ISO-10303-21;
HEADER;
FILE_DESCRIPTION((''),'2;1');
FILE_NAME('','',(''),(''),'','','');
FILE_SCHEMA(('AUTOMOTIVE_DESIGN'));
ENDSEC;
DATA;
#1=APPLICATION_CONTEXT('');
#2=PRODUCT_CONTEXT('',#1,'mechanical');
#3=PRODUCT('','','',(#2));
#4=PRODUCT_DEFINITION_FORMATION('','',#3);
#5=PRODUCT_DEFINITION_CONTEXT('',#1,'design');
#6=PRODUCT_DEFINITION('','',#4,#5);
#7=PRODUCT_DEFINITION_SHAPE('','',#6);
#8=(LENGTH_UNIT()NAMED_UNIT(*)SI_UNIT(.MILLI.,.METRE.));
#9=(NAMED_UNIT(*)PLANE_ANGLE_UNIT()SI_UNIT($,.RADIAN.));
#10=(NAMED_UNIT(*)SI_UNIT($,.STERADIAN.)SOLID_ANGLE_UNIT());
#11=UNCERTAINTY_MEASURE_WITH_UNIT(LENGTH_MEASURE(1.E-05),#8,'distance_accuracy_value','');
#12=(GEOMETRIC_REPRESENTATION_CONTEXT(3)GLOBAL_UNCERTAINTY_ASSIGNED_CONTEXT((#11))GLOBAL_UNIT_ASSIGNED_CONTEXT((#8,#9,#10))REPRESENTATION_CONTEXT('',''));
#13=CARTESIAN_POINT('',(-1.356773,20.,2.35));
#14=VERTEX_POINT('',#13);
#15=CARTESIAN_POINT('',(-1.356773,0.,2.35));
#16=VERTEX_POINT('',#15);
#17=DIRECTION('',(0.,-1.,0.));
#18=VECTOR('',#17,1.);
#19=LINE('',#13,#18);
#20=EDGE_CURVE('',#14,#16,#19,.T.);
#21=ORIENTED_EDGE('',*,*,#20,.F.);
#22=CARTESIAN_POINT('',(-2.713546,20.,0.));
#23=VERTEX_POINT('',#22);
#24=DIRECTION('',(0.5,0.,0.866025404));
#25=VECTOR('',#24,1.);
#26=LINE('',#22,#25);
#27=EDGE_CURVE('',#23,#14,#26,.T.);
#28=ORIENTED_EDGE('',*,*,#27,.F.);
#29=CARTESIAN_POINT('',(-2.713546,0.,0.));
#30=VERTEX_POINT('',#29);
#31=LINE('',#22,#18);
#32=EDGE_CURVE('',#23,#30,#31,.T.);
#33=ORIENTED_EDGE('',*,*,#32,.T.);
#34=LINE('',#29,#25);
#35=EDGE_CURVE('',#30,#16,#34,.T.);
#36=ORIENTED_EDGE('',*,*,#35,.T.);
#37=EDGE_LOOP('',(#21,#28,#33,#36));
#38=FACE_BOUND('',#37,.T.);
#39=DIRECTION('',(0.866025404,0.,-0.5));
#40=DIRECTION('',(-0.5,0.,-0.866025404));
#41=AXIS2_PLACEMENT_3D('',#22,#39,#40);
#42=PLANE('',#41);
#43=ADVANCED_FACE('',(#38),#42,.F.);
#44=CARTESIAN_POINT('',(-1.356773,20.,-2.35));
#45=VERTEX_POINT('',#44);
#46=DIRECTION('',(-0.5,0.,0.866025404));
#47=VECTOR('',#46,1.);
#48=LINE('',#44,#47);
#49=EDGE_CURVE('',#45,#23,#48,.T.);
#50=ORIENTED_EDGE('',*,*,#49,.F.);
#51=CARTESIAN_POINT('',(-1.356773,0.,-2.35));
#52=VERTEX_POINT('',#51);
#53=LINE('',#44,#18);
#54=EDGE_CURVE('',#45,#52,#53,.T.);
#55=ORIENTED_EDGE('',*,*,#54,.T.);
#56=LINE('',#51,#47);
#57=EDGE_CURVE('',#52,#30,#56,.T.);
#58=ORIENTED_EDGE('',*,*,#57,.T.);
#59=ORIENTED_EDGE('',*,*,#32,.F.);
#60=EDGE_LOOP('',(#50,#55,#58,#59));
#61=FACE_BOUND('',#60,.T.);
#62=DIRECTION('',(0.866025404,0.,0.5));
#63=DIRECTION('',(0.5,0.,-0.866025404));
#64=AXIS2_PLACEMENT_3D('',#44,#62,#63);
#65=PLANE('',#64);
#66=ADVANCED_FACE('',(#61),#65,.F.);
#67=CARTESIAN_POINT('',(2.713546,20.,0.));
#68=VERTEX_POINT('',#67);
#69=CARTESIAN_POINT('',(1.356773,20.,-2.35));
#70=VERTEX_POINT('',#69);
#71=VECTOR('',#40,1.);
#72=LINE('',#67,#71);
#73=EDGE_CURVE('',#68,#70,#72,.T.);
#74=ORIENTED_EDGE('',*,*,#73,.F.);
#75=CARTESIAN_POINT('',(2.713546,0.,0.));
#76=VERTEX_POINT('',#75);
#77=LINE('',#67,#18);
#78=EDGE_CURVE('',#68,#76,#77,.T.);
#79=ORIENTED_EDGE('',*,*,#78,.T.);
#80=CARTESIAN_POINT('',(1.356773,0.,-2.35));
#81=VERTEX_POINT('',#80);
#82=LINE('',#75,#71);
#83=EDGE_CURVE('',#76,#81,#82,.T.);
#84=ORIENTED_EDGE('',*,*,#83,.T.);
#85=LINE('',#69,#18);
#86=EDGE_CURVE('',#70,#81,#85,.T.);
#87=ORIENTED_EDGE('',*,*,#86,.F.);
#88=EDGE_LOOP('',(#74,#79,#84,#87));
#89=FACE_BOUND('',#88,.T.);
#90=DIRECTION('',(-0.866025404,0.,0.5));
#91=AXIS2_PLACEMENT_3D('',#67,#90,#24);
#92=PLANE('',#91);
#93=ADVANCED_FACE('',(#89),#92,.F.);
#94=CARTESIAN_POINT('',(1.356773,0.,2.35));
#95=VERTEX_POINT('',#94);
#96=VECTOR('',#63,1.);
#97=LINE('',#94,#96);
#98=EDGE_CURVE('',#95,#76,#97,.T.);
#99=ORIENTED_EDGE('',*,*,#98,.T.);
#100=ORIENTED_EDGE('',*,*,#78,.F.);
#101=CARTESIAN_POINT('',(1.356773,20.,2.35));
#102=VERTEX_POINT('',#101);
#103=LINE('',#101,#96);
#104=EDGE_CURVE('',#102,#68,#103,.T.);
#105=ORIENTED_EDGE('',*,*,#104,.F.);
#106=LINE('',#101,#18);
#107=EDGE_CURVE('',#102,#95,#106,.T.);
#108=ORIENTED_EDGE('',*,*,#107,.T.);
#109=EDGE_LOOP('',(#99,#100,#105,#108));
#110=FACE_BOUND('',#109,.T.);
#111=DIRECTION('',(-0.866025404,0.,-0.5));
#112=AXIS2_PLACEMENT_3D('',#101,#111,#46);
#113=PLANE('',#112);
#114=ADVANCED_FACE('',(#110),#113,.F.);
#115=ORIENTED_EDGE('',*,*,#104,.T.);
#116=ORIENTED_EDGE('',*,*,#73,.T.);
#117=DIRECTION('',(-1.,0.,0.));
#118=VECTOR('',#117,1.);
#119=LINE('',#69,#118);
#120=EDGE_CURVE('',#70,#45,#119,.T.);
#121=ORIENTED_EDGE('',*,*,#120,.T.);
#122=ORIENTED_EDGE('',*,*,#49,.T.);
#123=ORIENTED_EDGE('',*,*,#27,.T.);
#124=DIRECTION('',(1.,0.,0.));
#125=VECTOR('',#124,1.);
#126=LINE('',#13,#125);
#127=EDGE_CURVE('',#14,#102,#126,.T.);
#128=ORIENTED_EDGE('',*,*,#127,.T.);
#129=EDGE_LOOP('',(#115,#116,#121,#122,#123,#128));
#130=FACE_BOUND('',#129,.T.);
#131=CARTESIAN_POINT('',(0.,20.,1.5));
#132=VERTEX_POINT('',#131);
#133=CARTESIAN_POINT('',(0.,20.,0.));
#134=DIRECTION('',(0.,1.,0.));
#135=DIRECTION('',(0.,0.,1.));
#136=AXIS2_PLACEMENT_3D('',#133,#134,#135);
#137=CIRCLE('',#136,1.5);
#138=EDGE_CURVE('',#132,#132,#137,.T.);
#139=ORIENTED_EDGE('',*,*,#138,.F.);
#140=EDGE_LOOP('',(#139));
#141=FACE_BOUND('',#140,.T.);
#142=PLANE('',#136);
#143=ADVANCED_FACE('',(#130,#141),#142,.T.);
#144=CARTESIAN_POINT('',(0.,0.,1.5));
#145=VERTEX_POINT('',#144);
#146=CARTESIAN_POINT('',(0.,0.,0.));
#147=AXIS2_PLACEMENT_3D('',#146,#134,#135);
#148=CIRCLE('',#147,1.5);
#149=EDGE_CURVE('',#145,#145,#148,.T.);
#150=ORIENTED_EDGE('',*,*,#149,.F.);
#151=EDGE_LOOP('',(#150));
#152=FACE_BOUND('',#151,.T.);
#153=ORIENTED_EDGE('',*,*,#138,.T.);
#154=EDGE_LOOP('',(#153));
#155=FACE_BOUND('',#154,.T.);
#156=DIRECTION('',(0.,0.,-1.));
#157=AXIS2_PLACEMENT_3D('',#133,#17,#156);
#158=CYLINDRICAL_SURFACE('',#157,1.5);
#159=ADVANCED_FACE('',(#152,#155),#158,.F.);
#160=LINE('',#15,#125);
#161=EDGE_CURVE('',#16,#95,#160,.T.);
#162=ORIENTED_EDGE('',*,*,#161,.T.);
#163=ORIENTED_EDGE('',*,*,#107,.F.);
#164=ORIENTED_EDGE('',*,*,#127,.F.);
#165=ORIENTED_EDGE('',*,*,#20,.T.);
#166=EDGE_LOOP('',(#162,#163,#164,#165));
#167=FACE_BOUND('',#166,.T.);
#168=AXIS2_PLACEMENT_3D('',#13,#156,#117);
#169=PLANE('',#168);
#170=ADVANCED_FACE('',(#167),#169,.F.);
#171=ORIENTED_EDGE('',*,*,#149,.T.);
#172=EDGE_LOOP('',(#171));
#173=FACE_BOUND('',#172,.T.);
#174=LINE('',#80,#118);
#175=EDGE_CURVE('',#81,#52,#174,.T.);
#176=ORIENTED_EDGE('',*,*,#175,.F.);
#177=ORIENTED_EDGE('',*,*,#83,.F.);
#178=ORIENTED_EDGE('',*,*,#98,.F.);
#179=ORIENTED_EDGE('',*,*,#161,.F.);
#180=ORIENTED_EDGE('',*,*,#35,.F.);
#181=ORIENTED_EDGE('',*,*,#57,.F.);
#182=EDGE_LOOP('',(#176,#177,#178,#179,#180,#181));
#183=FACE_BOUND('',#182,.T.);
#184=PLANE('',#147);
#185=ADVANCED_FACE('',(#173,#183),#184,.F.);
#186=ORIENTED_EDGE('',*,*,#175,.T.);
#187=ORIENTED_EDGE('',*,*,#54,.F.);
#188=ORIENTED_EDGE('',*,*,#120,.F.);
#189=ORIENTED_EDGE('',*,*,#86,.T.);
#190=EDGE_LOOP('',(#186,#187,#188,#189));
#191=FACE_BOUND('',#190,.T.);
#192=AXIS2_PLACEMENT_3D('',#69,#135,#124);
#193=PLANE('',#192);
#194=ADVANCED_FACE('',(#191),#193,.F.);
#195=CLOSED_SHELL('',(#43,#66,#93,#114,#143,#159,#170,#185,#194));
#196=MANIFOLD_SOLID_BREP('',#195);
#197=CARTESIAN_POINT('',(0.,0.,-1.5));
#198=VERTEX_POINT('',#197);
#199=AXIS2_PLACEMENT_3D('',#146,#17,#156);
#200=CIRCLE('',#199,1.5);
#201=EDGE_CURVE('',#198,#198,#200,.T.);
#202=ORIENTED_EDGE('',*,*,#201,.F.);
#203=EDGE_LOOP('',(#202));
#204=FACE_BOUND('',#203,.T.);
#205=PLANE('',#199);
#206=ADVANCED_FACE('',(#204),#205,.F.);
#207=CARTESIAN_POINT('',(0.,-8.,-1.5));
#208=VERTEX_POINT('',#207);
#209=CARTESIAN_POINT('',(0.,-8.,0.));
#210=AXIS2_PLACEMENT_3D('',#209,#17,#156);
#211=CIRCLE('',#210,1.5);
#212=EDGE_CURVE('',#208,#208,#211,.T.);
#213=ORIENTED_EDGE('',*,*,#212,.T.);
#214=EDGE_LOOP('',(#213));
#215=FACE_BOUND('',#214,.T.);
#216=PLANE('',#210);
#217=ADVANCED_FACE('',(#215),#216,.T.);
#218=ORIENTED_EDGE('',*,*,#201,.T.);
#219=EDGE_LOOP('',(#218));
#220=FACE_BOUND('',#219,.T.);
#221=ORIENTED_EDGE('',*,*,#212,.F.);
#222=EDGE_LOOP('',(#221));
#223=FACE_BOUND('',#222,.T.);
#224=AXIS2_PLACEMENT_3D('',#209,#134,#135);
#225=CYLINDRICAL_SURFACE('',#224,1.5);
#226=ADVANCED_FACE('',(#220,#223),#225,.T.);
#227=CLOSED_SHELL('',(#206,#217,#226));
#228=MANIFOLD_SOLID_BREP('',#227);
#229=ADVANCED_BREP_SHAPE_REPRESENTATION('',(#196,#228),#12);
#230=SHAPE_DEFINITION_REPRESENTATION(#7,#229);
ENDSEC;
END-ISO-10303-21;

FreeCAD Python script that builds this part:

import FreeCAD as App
import Part
import Sketcher
from FreeCAD import Vector
Q = App.Units.Quantity

doc = App.newDocument("Part")
body = doc.addObject("PartDesign::Body", "Body")

# Sketch on XZ plane
sketch1 = doc.addObject("Sketcher::SketchObject", "Sketch")
body.addObject(sketch1)
sketch1.AttachmentSupport = (doc.XZ_Plane, [""])
sketch1.MapMode = "FlatFace"
sketch1.addGeometry(Part.LineSegment(Vector(2.713546, 0, 0), Vector(1.356773, -2.35, 0)), False)
sketch1.addGeometry(Part.LineSegment(Vector(1.356773, -2.35, 0), Vector(-1.356773, -2.35, 0)), False)
sketch1.addGeometry(Part.LineSegment(Vector(-1.356773, -2.35, 0), Vector(-2.713546, 0, 0)), False)
sketch1.addGeometry(Part.LineSegment(Vector(-2.713546, 0, 0), Vector(-1.356773, 2.35, 0)), False)
sketch1.addGeometry(Part.LineSegment(Vector(-1.356773, 2.35, 0), Vector(1.356773, 2.35, 0)), False)
sketch1.addGeometry(Part.LineSegment(Vector(1.356773, 2.35, 0), Vector(2.713546, 0, 0)), False)
sketch1.addGeometry(Part.Circle(Vector(0, 0, 0), Vector(0, 0, 1), 1.5), False)
sketch1.addConstraint(Sketcher.Constraint("Coincident", 0, 2, 1, 1))
sketch1.addConstraint(Sketcher.Constraint("Coincident", 1, 2, 2, 1))
sketch1.addConstraint(Sketcher.Constraint("Coincident", 2, 2, 3, 1))
sketch1.addConstraint(Sketcher.Constraint("Coincident", 3, 2, 4, 1))
sketch1.addConstraint(Sketcher.Constraint("Coincident", 4, 2, 5, 1))
sketch1.addConstraint(Sketcher.Constraint("Coincident", 5, 2, 0, 1))
sketch1.addConstraint(Sketcher.Constraint("Horizontal", 1))
sketch1.addConstraint(Sketcher.Constraint("Horizontal", 4))
sketch1.addConstraint(Sketcher.Constraint("Coincident", 6, 3, -1, 1))
sketch1.addConstraint(Sketcher.Constraint("Symmetric", 0, 2, 3, 2, -1, 1))
sketch1.addConstraint(Sketcher.Constraint("Symmetric", 2, 2, 5, 2, -1, 1))
sketch1.addConstraint(Sketcher.Constraint("PointOnObject", 2, 2, -1))
sketch1.addConstraint(Sketcher.Constraint("Parallel", 2, 5))
sketch1.addConstraint(Sketcher.Constraint("Vertical", 1, 2, 3, 2))
sketch1.addConstraint(Sketcher.Constraint("Diameter", 6, Q("3 mm")))
sketch1.addConstraint(Sketcher.Constraint("Angle", 0, Q("-120 deg")))
sketch1.addConstraint(Sketcher.Constraint("DistanceY", 1, 2, 3, 2, Q("4.7 mm")))
sketch1.addConstraint(Sketcher.Constraint("DistanceX", 1, 2, 1, 1, Q("2.713546 mm")))
pad1 = doc.addObject("PartDesign::Pad", "Pad")
body.addObject(pad1)
pad1.Profile = sketch1
pad1.Length = 20
pad1.Reversed = True
body2 = doc.addObject("PartDesign::Body", "Body001")

# Sketch on XZ plane
sketch2 = doc.addObject("Sketcher::SketchObject", "Sketch001")
body2.addObject(sketch2)
sketch2.AttachmentSupport = (doc.getObject("XZ_Plane001"), [""])
sketch2.MapMode = "FlatFace"
sketch2.addGeometry(Part.Circle(Vector(0, 0, 0), Vector(0, 0, 1), 1.5), False)
sketch2.addConstraint(Sketcher.Constraint("Coincident", 0, 3, -1, 1))
sketch2.addConstraint(Sketcher.Constraint("Diameter", 0, Q("3 mm")))
pad2 = doc.addObject("PartDesign::Pad", "Pad001")
body2.addObject(pad2)
pad2.Profile = sketch2
pad2.Length = 8

doc.recompute()
